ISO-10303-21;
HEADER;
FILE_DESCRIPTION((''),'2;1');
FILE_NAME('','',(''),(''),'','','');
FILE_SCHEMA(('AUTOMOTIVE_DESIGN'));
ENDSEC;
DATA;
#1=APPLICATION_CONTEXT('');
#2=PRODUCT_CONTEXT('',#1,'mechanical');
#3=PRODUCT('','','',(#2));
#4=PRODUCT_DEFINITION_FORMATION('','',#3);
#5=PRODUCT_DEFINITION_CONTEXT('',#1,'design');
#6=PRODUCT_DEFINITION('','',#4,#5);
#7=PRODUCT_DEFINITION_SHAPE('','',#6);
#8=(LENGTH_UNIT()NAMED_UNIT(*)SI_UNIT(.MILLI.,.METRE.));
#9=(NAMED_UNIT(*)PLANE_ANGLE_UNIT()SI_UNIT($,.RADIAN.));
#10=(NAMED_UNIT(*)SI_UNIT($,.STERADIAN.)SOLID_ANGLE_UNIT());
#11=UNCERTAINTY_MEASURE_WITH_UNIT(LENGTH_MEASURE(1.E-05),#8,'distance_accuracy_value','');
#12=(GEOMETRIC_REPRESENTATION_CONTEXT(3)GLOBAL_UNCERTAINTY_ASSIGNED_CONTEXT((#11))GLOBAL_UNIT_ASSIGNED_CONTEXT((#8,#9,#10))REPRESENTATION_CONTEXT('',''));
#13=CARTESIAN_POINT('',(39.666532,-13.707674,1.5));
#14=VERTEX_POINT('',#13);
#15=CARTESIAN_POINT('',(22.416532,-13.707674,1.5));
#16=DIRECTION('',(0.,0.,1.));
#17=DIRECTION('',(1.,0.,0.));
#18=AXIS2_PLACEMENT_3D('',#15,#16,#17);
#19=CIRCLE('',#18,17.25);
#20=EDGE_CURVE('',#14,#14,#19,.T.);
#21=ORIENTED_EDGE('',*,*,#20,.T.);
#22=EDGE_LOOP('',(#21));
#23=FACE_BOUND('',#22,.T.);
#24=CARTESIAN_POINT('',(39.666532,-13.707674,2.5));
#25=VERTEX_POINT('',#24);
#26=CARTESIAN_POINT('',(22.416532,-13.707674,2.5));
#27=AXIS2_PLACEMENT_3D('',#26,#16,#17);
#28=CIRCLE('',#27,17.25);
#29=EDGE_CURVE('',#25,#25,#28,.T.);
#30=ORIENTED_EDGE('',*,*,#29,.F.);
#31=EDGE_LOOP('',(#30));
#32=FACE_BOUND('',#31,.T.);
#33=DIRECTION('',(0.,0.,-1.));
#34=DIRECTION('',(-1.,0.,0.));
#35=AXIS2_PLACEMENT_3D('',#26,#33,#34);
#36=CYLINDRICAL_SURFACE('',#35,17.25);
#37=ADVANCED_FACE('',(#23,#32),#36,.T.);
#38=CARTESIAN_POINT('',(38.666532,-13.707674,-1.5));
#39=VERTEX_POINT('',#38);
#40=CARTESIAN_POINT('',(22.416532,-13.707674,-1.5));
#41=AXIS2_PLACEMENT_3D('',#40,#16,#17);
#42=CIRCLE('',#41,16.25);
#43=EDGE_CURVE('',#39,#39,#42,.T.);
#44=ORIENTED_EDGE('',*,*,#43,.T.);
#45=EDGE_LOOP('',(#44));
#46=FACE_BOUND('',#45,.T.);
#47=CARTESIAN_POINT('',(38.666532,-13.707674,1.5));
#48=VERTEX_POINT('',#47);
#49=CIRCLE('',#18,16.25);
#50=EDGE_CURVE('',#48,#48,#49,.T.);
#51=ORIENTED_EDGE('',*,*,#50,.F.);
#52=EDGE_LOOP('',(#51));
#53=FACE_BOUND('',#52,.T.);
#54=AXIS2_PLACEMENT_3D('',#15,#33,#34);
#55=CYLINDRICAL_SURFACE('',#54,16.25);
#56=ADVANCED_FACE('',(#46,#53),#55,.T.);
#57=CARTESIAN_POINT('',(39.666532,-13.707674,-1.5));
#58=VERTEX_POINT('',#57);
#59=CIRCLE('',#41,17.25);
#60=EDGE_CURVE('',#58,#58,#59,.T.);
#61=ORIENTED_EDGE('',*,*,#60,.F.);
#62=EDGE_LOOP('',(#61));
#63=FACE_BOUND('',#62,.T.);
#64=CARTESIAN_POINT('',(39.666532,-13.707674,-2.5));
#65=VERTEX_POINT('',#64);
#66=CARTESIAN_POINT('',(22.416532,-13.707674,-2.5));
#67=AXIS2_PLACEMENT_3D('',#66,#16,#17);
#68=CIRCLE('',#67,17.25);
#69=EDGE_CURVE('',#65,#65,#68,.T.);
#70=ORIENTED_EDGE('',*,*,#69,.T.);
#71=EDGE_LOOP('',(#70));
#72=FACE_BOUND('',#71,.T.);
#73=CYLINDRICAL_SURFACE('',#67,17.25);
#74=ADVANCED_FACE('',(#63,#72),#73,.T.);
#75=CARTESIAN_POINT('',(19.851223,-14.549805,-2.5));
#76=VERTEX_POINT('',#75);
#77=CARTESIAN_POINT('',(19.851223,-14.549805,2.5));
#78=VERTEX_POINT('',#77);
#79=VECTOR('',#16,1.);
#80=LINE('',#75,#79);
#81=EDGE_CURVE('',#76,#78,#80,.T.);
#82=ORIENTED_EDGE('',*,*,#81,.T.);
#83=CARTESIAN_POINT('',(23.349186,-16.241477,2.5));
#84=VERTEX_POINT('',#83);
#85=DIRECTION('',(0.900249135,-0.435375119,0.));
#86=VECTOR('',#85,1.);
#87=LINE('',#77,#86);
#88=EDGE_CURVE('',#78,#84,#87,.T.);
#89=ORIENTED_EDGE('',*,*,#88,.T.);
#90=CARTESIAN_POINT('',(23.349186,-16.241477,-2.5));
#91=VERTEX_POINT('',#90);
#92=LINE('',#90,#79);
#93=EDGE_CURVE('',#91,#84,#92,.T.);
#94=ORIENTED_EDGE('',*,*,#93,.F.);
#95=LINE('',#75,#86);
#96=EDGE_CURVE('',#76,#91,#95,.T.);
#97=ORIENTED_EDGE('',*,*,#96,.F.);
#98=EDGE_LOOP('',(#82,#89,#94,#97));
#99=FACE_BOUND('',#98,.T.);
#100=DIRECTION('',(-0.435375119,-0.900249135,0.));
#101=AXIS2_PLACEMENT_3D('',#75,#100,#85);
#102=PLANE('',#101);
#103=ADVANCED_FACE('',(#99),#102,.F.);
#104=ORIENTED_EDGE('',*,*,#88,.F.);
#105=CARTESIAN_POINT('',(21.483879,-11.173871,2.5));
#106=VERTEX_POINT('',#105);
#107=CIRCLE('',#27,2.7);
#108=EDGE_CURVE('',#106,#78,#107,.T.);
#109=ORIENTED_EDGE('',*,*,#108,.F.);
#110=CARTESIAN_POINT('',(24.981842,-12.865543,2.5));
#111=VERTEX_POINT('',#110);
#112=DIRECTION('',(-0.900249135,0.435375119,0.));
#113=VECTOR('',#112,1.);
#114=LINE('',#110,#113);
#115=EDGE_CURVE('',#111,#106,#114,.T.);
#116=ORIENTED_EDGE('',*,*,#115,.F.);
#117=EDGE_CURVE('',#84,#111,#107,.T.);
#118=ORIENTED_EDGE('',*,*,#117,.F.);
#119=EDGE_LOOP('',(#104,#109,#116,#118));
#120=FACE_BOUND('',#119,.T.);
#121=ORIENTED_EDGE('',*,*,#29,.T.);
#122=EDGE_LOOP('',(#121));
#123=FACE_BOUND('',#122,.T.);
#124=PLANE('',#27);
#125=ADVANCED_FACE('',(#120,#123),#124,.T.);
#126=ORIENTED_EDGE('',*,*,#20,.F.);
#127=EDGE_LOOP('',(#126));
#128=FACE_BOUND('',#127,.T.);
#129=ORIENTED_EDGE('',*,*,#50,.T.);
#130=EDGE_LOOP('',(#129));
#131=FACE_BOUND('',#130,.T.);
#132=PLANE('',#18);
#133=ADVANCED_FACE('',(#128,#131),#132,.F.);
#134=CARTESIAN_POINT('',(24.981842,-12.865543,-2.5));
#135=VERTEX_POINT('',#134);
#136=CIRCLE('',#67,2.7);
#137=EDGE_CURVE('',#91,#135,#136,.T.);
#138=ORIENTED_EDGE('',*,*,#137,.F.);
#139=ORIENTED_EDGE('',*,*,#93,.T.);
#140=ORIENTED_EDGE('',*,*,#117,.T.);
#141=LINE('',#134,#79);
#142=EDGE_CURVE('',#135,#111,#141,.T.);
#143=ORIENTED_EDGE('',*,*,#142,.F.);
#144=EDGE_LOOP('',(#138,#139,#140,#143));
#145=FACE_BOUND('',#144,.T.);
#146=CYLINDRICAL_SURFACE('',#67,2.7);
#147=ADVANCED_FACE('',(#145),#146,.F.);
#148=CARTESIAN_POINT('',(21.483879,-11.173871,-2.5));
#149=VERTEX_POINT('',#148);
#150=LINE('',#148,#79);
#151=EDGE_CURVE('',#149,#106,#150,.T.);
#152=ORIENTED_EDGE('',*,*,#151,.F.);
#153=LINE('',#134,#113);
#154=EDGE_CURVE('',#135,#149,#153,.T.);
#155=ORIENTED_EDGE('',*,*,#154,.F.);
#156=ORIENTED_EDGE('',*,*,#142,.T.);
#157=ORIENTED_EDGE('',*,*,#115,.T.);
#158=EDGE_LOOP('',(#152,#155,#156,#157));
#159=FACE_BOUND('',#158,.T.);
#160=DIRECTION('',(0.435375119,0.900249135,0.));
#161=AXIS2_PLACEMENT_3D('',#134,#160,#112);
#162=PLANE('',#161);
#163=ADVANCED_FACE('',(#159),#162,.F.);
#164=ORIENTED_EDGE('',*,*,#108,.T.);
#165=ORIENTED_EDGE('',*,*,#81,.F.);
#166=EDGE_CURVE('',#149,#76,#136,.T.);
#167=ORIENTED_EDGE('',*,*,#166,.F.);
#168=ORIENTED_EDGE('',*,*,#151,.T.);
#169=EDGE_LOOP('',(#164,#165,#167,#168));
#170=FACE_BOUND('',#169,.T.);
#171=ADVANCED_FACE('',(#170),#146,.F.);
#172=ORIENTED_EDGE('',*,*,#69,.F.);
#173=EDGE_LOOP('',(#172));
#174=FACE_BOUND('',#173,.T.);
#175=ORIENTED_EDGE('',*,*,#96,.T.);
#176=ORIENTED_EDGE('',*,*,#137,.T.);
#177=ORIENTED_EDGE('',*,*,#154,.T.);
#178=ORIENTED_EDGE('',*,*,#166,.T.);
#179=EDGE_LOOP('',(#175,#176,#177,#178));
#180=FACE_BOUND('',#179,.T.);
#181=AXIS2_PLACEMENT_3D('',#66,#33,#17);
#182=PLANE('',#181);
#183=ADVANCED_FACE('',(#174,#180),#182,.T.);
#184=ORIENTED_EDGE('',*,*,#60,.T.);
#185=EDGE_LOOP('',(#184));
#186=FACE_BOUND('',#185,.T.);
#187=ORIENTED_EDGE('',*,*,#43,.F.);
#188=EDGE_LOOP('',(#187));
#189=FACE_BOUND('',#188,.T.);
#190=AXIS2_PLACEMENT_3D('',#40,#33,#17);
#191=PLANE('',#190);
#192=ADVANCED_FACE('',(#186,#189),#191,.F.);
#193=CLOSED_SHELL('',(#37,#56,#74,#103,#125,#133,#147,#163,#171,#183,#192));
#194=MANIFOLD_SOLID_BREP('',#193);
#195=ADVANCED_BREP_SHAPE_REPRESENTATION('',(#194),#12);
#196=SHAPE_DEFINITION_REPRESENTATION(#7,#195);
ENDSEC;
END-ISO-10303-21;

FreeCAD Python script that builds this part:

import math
import FreeCAD as App
import Part
import Sketcher
from FreeCAD import Vector
Q = App.Units.Quantity

doc = App.newDocument("Part")
body = doc.addObject("PartDesign::Body", "Body")

# Sketch on XY plane
sketch1 = body.newObject("Sketcher::SketchObject", "Sketch")
sketch1.AttachmentSupport = (doc.getObject("XY_Plane"), [""])
sketch1.MapMode = "FlatFace"
sketch1.addGeometry(Part.Circle(Vector(22, -14, 0), Vector(0, 0, 1), 16), False)
sketch1.addConstraint([
    Sketcher.Constraint("Diameter", 0, Q("32.5 mm")),
    Sketcher.Constraint("DistanceX", -1, 1, 0, 3, Q("22.416532 mm")),
    Sketcher.Constraint("DistanceY", 0, 3, -1, 1, Q("13.707674 mm")),
])
pad1 = body.newObject("PartDesign::Pad", "Pad")
pad1.Profile = sketch1
pad1.Length = 3
pad1.Midplane = True

# Sketch on XY plane
sketch2 = body.newObject("Sketcher::SketchObject", "Sketch001")
sketch2.AttachmentSupport = (doc.getObject("XY_Plane"), [""])
sketch2.MapMode = "FlatFace"
sketch2.AttachmentOffset = App.Placement(Vector(0, 0, 1.5), App.Rotation())
sketch2.addGeometry(Part.Circle(Vector(22, -14, 0), Vector(0, 0, 1), 17), False)
sketch2.addConstraint([
    Sketcher.Constraint("Diameter", 0, Q("34.5 mm")),
    Sketcher.Constraint("DistanceX", -1, 1, 0, 3, Q("22.416532 mm")),
    Sketcher.Constraint("DistanceY", 0, 3, -1, 1, Q("13.707674 mm")),
])
pad2 = body.newObject("PartDesign::Pad", "Pad001")
pad2.Profile = sketch2
pad2.Length = 1
doc.recompute()

mirrored = body.newObject("PartDesign::Mirrored", "Mirrored")
mirrored.Originals = [pad2]
mirrored.MirrorPlane = (doc.getObject("XY_Plane"), [""])
body.Tip = mirrored

# Sketch on XY plane
sketch3 = body.newObject("Sketcher::SketchObject", "Sketch002")
sketch3.AttachmentSupport = (doc.getObject("XY_Plane"), [""])
sketch3.MapMode = "FlatFace"
sketch3.AttachmentOffset = App.Placement(Vector(0, 0, 2.5), App.Rotation())
sketch3.addGeometry([
    Part.LineSegment(Vector(25, -12.9, 0), Vector(21.5, -11.2, 0)),
    Part.ArcOfCircle(Part.Circle(Vector(22.4, -13.7, 0), Vector(0, 0, 1), 2.7), math.radians(110), math.radians(198)),
    Part.LineSegment(Vector(19.9, -14.5, 0), Vector(23.3, -16.2, 0)),
    Part.ArcOfCircle(Part.Circle(Vector(22.4, -13.7, 0), Vector(0, 0, 1), 2.7), math.radians(-70), math.radians(18)),
], False)
sketch3.addConstraint([
    Sketcher.Constraint("Coincident", 0, 2, 1, 1),
    Sketcher.Constraint("Coincident", 1, 2, 2, 1),
    Sketcher.Constraint("Coincident", 2, 2, 3, 1),
    Sketcher.Constraint("Coincident", 3, 2, 0, 1),
    Sketcher.Constraint("Coincident", 3, 3, 1, 3),
    Sketcher.Constraint("Equal", 1, 3),
    Sketcher.Constraint("Parallel", 0, 2),
    Sketcher.Constraint("Equal", 0, 2),
    Sketcher.Constraint("Radius", 1, Q("2.7 mm")),
    Sketcher.Constraint("Distance", 0, Q("3.88555 mm")),
    Sketcher.Constraint("DistanceX", -1, 1, 0, 2, Q("21.483879 mm")),
    Sketcher.Constraint("DistanceY", 0, 2, -1, 1, Q("11.173871 mm")),
    Sketcher.Constraint("DistanceX", 1, 2, 1, 3, Q("2.56531 mm")),
])
pocket1 = body.newObject("PartDesign::Pocket", "Pocket")
pocket1.Profile = sketch3
pocket1.Type = "ThroughAll"

doc.recompute()
